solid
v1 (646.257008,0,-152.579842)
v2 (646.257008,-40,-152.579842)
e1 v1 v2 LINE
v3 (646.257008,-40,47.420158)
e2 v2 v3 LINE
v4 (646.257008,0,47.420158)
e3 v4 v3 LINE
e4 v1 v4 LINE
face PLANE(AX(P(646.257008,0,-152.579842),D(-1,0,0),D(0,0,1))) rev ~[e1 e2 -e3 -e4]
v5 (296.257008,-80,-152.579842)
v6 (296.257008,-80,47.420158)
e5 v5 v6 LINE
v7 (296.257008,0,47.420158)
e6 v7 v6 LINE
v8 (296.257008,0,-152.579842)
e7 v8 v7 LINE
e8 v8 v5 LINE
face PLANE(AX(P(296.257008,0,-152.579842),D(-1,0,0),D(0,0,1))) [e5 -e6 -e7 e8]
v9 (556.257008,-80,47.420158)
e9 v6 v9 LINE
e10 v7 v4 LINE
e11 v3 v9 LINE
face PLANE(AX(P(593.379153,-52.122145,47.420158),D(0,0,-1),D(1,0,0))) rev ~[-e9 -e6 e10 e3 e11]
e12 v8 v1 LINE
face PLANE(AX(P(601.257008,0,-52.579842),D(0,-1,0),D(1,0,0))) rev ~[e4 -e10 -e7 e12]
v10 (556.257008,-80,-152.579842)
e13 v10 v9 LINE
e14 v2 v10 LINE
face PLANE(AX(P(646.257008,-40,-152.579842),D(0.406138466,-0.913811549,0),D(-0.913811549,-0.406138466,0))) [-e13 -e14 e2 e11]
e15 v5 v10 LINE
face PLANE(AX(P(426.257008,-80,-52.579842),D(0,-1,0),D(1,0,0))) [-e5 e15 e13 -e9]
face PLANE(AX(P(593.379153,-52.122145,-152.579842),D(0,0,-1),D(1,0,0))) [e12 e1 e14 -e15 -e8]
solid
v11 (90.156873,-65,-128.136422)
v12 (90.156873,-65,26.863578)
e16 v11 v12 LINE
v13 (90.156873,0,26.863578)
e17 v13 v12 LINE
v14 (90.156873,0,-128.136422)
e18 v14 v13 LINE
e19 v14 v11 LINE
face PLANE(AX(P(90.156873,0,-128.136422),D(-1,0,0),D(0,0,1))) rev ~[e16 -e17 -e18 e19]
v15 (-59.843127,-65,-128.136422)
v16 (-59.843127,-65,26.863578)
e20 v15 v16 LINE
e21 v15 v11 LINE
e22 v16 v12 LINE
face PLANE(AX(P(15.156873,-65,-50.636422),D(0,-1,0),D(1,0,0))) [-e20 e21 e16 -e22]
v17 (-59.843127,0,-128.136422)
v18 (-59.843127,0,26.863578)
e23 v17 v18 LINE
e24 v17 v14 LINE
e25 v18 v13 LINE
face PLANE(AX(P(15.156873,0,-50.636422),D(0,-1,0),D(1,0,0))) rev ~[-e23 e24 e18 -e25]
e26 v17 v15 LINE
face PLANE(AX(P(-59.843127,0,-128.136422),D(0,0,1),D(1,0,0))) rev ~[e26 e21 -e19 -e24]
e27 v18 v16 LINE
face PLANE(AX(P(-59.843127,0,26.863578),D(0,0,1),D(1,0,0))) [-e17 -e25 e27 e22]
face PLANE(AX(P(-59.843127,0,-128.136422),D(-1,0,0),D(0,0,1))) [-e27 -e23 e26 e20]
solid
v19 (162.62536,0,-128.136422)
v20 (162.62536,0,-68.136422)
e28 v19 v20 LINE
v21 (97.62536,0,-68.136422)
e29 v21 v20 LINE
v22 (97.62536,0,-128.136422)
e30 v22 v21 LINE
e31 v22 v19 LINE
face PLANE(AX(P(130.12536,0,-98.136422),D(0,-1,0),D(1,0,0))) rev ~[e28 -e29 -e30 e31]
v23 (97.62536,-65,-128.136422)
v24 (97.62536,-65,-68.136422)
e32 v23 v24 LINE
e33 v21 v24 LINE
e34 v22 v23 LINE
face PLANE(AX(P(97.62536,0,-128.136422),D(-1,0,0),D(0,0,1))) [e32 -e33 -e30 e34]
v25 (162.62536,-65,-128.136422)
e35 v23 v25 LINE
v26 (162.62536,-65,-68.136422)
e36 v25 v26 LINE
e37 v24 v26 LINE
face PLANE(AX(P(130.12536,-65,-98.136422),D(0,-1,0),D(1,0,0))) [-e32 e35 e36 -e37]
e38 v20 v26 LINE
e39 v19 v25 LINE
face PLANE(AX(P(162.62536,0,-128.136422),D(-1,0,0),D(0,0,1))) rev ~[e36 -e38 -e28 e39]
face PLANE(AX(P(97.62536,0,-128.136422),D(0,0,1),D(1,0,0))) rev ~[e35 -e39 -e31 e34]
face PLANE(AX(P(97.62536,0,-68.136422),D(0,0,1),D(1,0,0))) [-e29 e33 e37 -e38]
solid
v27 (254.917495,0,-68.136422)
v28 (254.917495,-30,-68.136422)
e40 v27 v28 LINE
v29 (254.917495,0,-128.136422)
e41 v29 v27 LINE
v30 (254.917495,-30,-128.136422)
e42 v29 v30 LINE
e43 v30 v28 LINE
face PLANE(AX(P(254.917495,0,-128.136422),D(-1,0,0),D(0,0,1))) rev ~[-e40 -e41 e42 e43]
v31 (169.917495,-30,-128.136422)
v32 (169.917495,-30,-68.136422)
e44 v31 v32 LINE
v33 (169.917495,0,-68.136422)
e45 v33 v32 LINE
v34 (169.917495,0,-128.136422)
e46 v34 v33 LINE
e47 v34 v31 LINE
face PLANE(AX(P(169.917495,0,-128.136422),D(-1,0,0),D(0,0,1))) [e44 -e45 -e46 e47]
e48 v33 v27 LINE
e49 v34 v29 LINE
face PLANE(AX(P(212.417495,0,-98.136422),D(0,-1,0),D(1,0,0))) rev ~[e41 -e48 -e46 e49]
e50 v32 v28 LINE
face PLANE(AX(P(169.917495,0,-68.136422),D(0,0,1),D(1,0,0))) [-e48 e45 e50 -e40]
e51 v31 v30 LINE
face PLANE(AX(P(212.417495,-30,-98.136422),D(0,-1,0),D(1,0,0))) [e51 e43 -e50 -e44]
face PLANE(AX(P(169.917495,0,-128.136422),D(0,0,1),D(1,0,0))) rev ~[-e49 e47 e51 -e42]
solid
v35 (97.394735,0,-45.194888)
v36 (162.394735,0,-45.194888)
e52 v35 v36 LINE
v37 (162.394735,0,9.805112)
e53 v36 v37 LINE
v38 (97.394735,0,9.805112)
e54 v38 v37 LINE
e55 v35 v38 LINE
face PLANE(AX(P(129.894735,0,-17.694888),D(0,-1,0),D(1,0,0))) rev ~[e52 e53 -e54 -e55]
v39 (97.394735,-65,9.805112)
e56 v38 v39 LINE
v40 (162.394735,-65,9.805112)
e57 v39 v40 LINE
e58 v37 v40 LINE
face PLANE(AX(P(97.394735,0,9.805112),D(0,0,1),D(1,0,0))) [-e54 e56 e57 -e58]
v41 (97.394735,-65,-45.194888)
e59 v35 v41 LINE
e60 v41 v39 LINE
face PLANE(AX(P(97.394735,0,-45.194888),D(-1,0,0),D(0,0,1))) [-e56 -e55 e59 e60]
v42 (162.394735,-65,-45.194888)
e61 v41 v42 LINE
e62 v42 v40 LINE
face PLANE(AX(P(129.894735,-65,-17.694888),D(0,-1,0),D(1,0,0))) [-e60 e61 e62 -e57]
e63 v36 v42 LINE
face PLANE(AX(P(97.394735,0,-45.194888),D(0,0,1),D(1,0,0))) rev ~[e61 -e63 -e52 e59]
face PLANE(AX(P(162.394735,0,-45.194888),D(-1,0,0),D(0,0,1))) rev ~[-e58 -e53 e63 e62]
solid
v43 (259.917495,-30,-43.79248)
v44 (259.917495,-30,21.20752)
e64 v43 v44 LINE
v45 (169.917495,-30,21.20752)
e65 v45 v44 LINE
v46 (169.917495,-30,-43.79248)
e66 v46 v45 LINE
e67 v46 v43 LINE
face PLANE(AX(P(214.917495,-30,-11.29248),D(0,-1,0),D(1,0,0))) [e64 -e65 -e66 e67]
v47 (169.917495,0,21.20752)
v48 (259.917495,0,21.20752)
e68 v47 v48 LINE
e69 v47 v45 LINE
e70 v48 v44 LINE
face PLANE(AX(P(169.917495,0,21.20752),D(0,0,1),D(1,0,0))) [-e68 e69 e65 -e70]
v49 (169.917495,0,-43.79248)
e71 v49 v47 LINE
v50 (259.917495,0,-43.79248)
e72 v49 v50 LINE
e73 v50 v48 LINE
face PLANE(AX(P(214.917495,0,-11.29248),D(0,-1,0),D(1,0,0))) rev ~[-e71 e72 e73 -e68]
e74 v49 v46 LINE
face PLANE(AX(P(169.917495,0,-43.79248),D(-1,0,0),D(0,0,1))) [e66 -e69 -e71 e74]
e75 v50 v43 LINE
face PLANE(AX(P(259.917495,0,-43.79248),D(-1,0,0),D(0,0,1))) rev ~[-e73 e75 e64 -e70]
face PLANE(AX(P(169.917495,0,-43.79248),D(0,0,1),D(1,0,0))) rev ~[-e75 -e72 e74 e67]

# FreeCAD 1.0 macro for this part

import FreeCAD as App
import Part
import Sketcher

V = App.Vector

doc = App.newDocument("Part")
body = doc.addObject("PartDesign::Body", "Body")
body.AllowCompound = True

sketch1 = body.newObject("Sketcher::SketchObject", "Sketch")
sketch1.AttachmentSupport = (doc.getObject("XZ_Plane"), [""])
sketch1.MapMode = "FlatFace"
sketch1.addGeometry([
    Part.LineSegment(V(-60, 27, 0), V(-60, -128, 0)),
    Part.LineSegment(V(-60, -128, 0), V(90, -128, 0)),
    Part.LineSegment(V(90, -128, 0), V(90, 27, 0)),
    Part.LineSegment(V(90, 27, 0), V(-60, 27, 0)),
    Part.LineSegment(V(98, -68, 0), V(98, -128, 0)),
    Part.LineSegment(V(98, -128, 0), V(163, -128, 0)),
    Part.LineSegment(V(163, -128, 0), V(163, -68, 0)),
    Part.LineSegment(V(163, -68, 0), V(98, -68, 0)),
    Part.LineSegment(V(97, 10, 0), V(97, -45, 0)),
    Part.LineSegment(V(97, -45, 0), V(162, -45, 0)),
    Part.LineSegment(V(162, -45, 0), V(162, 10, 0)),
    Part.LineSegment(V(162, 10, 0), V(97, 10, 0)),
], False)
sketch1.addConstraint([
    Sketcher.Constraint("Coincident", 0, 2, 1, 1),
    Sketcher.Constraint("Coincident", 1, 2, 2, 1),
    Sketcher.Constraint("Coincident", 2, 2, 3, 1),
    Sketcher.Constraint("Coincident", 3, 2, 0, 1),
    Sketcher.Constraint("Coincident", 4, 2, 5, 1),
    Sketcher.Constraint("Coincident", 5, 2, 6, 1),
    Sketcher.Constraint("Coincident", 6, 2, 7, 1),
    Sketcher.Constraint("Coincident", 7, 2, 4, 1),
    Sketcher.Constraint("Coincident", 8, 2, 9, 1),
    Sketcher.Constraint("Coincident", 9, 2, 10, 1),
    Sketcher.Constraint("Coincident", 10, 2, 11, 1),
    Sketcher.Constraint("Coincident", 11, 2, 8, 1),
    Sketcher.Constraint("Vertical", 0),
    Sketcher.Constraint("Horizontal", 1),
    Sketcher.Constraint("Vertical", 2),
    Sketcher.Constraint("Horizontal", 3),
    Sketcher.Constraint("Vertical", 4),
    Sketcher.Constraint("Horizontal", 5),
    Sketcher.Constraint("Vertical", 6),
    Sketcher.Constraint("Horizontal", 7),
    Sketcher.Constraint("Vertical", 8),
    Sketcher.Constraint("Horizontal", 9),
    Sketcher.Constraint("Vertical", 10),
    Sketcher.Constraint("Horizontal", 11),
    Sketcher.Constraint("Horizontal", 1, 2, 4, 2),
    Sketcher.Constraint("Equal", 7, 9),
    Sketcher.Constraint("DistanceX", 1, 1, 1, 2, 150.0),
    Sketcher.Constraint("DistanceX", 5, 1, 5, 2, 65.0),
    Sketcher.Constraint("DistanceY", 0, 2, 0, 1, 155.0),
    Sketcher.Constraint("DistanceY", 4, 2, 4, 1, 60.0),
    Sketcher.Constraint("DistanceY", 8, 2, 8, 1, 55.0),
    Sketcher.Constraint("DistanceY", -1, 1, 2, 2, 26.863578),
    Sketcher.Constraint("DistanceX", -1, 1, 4, 2, 97.62536),
    Sketcher.Constraint("DistanceY", -1, 1, 10, 2, 9.805112),
    Sketcher.Constraint("DistanceX", 2, 2, 8, 2, 7.237862),
    Sketcher.Constraint("DistanceX", 0, 2, -1, 1, 59.843127),
])
pad1 = body.newObject("PartDesign::Pad", "Pad")
pad1.Profile = sketch1
pad1.Length = 65
body2 = doc.addObject("PartDesign::Body", "Body001")

sketch2 = body2.newObject("Sketcher::SketchObject", "Sketch001")
sketch2.AttachmentSupport = (doc.getObject("XZ_Plane001"), [""])
sketch2.MapMode = "FlatFace"
sketch2.addGeometry([
    Part.LineSegment(V(296, 47, 0), V(296, -153, 0)),
    Part.LineSegment(V(296, -153, 0), V(556, -153, 0)),
    Part.LineSegment(V(556, -153, 0), V(556, 47, 0)),
    Part.LineSegment(V(556, 47, 0), V(296, 47, 0)),
], False)
sketch2.addConstraint([
    Sketcher.Constraint("Coincident", 0, 2, 1, 1),
    Sketcher.Constraint("Coincident", 1, 2, 2, 1),
    Sketcher.Constraint("Coincident", 2, 2, 3, 1),
    Sketcher.Constraint("Coincident", 3, 2, 0, 1),
    Sketcher.Constraint("Vertical", 0),
    Sketcher.Constraint("Horizontal", 1),
    Sketcher.Constraint("Vertical", 2),
    Sketcher.Constraint("Horizontal", 3),
    Sketcher.Constraint("DistanceX", 1, 1, 1, 2, 260.0),
    Sketcher.Constraint("DistanceY", 0, 2, 0, 1, 200.0),
    Sketcher.Constraint("DistanceX", -1, 1, 0, 2, 296.257008),
    Sketcher.Constraint("DistanceY", 0, 2, -1, 1, 152.579842),
])
pad2 = body2.newObject("PartDesign::Pad", "Pad001")
pad2.Profile = sketch2
pad2.Length = 80

sketch3 = body2.newObject("Sketcher::SketchObject", "Sketch002")
sketch3.AttachmentSupport = (doc.getObject("XZ_Plane001"), [""])
sketch3.MapMode = "FlatFace"
sketch3.addGeometry([
    Part.LineSegment(V(556, 47, 0), V(556, -153, 0)),
    Part.LineSegment(V(556, -153, 0), V(646, -153, 0)),
    Part.LineSegment(V(646, -153, 0), V(646, 47, 0)),
    Part.LineSegment(V(646, 47, 0), V(556, 47, 0)),
], False)
sketch3.addConstraint([
    Sketcher.Constraint("Coincident", 0, 2, 1, 1),
    Sketcher.Constraint("Coincident", 1, 2, 2, 1),
    Sketcher.Constraint("Coincident", 2, 2, 3, 1),
    Sketcher.Constraint("Coincident", 3, 2, 0, 1),
    Sketcher.Constraint("Vertical", 0),
    Sketcher.Constraint("Horizontal", 1),
    Sketcher.Constraint("Vertical", 2),
    Sketcher.Constraint("Horizontal", 3),
    Sketcher.Constraint("DistanceX", 1, 1, 1, 2, 90.0),
    Sketcher.Constraint("DistanceY", 0, 2, 0, 1, 200.0),
    Sketcher.Constraint("DistanceX", -1, 1, 0, 2, 556.257008),
    Sketcher.Constraint("DistanceY", 0, 2, -1, 1, 152.579842),
])
pad3 = body2.newObject("PartDesign::Pad", "Pad002")
pad3.Profile = sketch3
pad3.Length = 40

sketch4 = body2.newObject("Sketcher::SketchObject", "Sketch003")
sketch4.AttachmentSupport = (doc.getObject("XY_Plane001"), [""])
sketch4.MapMode = "FlatFace"
sketch4.AttachmentOffset = App.Placement(V(0, 0, -152.579842), App.Rotation())
sketch4.addGeometry([
    Part.LineSegment(V(646, -40, 0), V(556, -80, 0)),
    Part.LineSegment(V(556, -80, 0), V(556, -40, 0)),
    Part.LineSegment(V(556, -40, 0), V(646, -40, 0)),
], False)
sketch4.addConstraint([
    Sketcher.Constraint("Coincident", 0, 2, 1, 1),
    Sketcher.Constraint("Coincident", 1, 2, 2, 1),
    Sketcher.Constraint("Coincident", 2, 2, 0, 1),
    Sketcher.Constraint("Vertical", 1),
    Sketcher.Constraint("Horizontal", 2),
    Sketcher.Constraint("DistanceX", 2, 1, 2, 2, 90.0),
    Sketcher.Constraint("DistanceY", 1, 1, 1, 2, 40.0),
    Sketcher.Constraint("DistanceY", 0, 2, -1, 1, 80.0),
    Sketcher.Constraint("DistanceX", -1, 1, 0, 2, 556.257008),
])
pad4 = body2.newObject("PartDesign::Pad", "Pad003")
pad4.Profile = sketch4
pad4.Length = 200
body3 = doc.addObject("PartDesign::Body", "Body002")
body3.AllowCompound = True

sketch5 = body3.newObject("Sketcher::SketchObject", "Sketch004")
sketch5.AttachmentSupport = (doc.getObject("XZ_Plane002"), [""])
sketch5.MapMode = "FlatFace"
sketch5.addGeometry([
    Part.LineSegment(V(170, -68, 0), V(170, -128, 0)),
    Part.LineSegment(V(170, -128, 0), V(255, -128, 0)),
    Part.LineSegment(V(255, -128, 0), V(255, -68, 0)),
    Part.LineSegment(V(255, -68, 0), V(170, -68, 0)),
    Part.LineSegment(V(170, 21, 0), V(170, -44, 0)),
    Part.LineSegment(V(170, -44, 0), V(260, -44, 0)),
    Part.LineSegment(V(260, -44, 0), V(260, 21, 0)),
    Part.LineSegment(V(260, 21, 0), V(170, 21, 0)),
], False)
sketch5.addConstraint([
    Sketcher.Constraint("Coincident", 0, 2, 1, 1),
    Sketcher.Constraint("Coincident", 1, 2, 2, 1),
    Sketcher.Constraint("Coincident", 2, 2, 3, 1),
    Sketcher.Constraint("Coincident", 3, 2, 0, 1),
    Sketcher.Constraint("Coincident", 4, 2, 5, 1),
    Sketcher.Constraint("Coincident", 5, 2, 6, 1),
    Sketcher.Constraint("Coincident", 6, 2, 7, 1),
    Sketcher.Constraint("Coincident", 7, 2, 4, 1),
    Sketcher.Constraint("Vertical", 0),
    Sketcher.Constraint("Horizontal", 1),
    Sketcher.Constraint("Vertical", 2),
    Sketcher.Constraint("Horizontal", 3),
    Sketcher.Constraint("Vertical", 4),
    Sketcher.Constraint("Horizontal", 5),
    Sketcher.Constraint("Vertical", 6),
    Sketcher.Constraint("Horizontal", 7),
    Sketcher.Constraint("Vertical", 3, 2, 4, 2),
    Sketcher.Constraint("DistanceX", 1, 1, 1, 2, 85.0),
    Sketcher.Constraint("DistanceX", 5, 1, 5, 2, 90.0),
    Sketcher.Constraint("DistanceY", 0, 2, 0, 1, 60.0),
    Sketcher.Constraint("DistanceY", 4, 2, 4, 1, 65.0),
    Sketcher.Constraint("DistanceY", 2, 2, -1, 1, 68.136422),
    Sketcher.Constraint("DistanceY", 4, 2, -1, 1, 43.79248),
    Sketcher.Constraint("DistanceX", -1, 1, 0, 2, 169.917495),
])
pad5 = body3.newObject("PartDesign::Pad", "Pad004")
pad5.Profile = sketch5
pad5.Length = 30

doc.recompute()
